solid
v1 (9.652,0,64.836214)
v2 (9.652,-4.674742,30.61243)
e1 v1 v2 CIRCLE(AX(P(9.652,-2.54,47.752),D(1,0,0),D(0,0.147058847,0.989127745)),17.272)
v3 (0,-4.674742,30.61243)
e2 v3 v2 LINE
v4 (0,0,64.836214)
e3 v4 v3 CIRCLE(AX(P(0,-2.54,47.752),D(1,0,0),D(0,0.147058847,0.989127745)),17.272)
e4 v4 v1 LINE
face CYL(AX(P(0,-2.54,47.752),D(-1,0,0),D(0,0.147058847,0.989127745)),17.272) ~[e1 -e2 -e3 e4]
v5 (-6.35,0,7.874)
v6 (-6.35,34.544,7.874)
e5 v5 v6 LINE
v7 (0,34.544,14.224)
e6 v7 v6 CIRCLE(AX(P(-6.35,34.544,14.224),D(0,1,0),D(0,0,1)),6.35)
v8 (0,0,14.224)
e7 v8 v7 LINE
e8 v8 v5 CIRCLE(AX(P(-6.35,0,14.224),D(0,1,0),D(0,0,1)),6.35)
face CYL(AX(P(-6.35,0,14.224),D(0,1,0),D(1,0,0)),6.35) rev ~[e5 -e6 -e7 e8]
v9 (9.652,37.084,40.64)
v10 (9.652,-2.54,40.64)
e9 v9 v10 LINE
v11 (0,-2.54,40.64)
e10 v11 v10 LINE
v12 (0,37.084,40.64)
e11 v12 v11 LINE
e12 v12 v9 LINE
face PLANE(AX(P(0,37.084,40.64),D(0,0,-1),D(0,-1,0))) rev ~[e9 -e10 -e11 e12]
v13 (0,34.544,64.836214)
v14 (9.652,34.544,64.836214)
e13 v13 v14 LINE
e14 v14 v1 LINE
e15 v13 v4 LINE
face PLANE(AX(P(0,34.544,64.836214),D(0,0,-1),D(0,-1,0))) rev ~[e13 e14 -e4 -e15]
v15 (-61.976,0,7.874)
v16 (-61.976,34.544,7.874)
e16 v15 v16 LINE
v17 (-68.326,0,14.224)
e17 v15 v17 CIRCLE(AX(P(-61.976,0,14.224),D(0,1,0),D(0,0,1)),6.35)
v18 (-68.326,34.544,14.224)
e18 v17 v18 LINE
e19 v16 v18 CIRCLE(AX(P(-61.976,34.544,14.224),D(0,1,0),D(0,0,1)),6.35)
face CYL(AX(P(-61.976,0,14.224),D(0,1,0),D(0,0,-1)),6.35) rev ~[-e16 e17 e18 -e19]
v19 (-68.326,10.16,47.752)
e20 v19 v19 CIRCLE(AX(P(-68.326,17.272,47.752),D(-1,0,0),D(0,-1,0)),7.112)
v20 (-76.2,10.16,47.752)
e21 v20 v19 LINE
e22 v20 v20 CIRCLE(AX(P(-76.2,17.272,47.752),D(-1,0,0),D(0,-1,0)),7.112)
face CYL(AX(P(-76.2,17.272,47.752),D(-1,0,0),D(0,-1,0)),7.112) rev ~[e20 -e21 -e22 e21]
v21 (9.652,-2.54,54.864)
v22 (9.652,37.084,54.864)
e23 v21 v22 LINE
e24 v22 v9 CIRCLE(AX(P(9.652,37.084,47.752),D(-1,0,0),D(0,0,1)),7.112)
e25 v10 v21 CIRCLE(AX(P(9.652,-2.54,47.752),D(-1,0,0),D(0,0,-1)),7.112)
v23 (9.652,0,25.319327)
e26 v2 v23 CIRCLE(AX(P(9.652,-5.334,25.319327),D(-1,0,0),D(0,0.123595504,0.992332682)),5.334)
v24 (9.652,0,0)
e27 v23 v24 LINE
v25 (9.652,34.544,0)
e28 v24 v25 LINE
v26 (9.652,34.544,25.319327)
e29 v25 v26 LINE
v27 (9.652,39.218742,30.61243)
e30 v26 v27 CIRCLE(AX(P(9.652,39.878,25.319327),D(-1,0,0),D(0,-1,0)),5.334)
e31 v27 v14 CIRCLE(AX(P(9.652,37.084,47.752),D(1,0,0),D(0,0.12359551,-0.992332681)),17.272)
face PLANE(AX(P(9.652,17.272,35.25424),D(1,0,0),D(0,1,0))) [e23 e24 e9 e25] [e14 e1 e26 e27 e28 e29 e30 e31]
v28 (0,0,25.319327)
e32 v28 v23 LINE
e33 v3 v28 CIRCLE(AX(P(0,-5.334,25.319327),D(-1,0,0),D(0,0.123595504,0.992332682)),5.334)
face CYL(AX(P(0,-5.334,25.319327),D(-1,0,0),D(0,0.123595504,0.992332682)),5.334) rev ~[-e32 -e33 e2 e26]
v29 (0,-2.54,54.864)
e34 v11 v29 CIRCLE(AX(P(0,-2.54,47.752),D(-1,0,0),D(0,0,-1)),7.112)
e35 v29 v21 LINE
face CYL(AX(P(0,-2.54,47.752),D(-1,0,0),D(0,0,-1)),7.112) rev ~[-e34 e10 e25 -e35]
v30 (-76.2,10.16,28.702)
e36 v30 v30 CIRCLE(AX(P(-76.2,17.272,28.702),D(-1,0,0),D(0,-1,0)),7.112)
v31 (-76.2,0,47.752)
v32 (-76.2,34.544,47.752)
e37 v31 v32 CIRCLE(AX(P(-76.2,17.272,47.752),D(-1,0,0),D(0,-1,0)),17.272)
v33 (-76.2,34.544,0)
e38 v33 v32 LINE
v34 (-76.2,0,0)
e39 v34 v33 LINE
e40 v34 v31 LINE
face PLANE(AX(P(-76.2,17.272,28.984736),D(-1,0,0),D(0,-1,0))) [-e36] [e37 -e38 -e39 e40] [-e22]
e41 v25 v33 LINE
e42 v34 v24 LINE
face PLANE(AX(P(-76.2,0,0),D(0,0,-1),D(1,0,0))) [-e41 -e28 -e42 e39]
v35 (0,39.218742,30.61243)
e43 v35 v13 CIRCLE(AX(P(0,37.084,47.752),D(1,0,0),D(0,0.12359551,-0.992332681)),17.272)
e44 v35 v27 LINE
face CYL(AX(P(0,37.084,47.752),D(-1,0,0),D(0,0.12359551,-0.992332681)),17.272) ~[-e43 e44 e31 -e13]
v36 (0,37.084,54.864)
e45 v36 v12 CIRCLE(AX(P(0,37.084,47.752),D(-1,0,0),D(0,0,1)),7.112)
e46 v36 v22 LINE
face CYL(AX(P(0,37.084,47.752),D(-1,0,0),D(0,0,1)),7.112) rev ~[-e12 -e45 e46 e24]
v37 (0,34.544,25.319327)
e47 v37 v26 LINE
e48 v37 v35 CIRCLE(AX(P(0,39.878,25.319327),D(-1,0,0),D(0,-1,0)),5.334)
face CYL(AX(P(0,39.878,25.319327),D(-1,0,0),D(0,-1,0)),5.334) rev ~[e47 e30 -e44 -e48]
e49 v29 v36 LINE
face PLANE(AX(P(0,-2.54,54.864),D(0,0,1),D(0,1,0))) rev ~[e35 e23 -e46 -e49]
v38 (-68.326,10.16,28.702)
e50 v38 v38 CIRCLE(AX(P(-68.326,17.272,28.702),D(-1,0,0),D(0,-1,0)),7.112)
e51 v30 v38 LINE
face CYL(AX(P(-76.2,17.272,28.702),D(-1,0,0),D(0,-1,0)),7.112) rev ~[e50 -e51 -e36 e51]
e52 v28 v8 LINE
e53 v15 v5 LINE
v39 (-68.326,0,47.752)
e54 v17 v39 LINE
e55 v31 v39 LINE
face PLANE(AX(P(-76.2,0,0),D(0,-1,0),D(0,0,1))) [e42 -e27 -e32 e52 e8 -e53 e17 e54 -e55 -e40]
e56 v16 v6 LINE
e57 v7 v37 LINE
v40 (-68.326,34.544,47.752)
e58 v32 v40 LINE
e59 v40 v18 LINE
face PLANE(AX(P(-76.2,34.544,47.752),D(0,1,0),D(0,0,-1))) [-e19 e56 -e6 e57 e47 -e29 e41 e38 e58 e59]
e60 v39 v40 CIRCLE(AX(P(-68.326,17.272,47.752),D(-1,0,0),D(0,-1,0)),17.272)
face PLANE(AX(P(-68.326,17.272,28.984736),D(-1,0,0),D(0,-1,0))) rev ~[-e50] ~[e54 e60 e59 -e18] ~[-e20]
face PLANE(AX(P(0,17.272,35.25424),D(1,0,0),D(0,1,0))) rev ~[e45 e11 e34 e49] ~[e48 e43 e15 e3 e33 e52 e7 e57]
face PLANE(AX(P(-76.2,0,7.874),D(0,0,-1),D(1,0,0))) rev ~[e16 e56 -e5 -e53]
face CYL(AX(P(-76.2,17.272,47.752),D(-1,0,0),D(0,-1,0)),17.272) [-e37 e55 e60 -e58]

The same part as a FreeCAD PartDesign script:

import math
import FreeCAD as App
import Part
import Sketcher

V = App.Vector
Q = App.Units.Quantity


def edges_at(feature, points):
    """Names of the edges that pass closest to the given points."""
    edges = feature.Shape.Edges
    near = lambda p: min(range(len(edges)), key=lambda i: edges[i].distToShape(Part.Vertex(*p))[0])
    return sorted({f"Edge{near(p) + 1}" for p in points})

doc = App.newDocument("Part")
body = doc.addObject("PartDesign::Body", "Body")

# Sketch on YZ plane
sketch1 = doc.addObject("Sketcher::SketchObject", "Sketch")
body.addObject(sketch1)
sketch1.AttachmentSupport = (doc.YZ_Plane, [""])
sketch1.MapMode = "FlatFace"
sketch1.addGeometry(Part.LineSegment(V(0, 25, 0), V(0, 0, 0)), False)
sketch1.addGeometry(Part.LineSegment(V(0, 0, 0), V(35, 0, 0)), False)
sketch1.addGeometry(Part.LineSegment(V(35, 0, 0), V(35, 25, 0)), False)
sketch1.addGeometry(Part.ArcOfCircle(Part.Circle(V(40, 25, 0), V(0, 0, 1), 5), math.radians(97), math.radians(180)), False)
sketch1.addGeometry(Part.ArcOfCircle(Part.Circle(V(37, 48, 0), V(0, 0, 1), 17), math.radians(-83), math.radians(98)), False)
sketch1.addGeometry(Part.LineSegment(V(35, 65, 0), V(0, 65, 0)), False)
sketch1.addGeometry(Part.ArcOfCircle(Part.Circle(V(-3, 48, 0), V(0, 0, 1), 17), math.radians(82), math.radians(263)), False)
sketch1.addGeometry(Part.ArcOfCircle(Part.Circle(V(-5, 25, 0), V(0, 0, 1), 5), math.radians(0), math.radians(83)), False)
sketch1.addGeometry(Part.LineSegment(V(-3, 55, 0), V(37, 55, 0)), False)
sketch1.addGeometry(Part.ArcOfCircle(Part.Circle(V(37, 48, 0), V(0, 0, 1), 7), math.radians(-90), math.radians(90)), False)
sketch1.addGeometry(Part.LineSegment(V(37, 41, 0), V(-3, 41, 0)), False)
sketch1.addGeometry(Part.ArcOfCircle(Part.Circle(V(-3, 48, 0), V(0, 0, 1), 7), math.radians(90), math.radians(270)), False)
sketch1.addConstraint(Sketcher.Constraint("Coincident", 0, 2, 1, 1))
sketch1.addConstraint(Sketcher.Constraint("Coincident", 1, 2, 2, 1))
sketch1.addConstraint(Sketcher.Constraint("Tangent", 2, 2, 3, 2))
sketch1.addConstraint(Sketcher.Constraint("Tangent", 3, 1, 4, 1))
sketch1.addConstraint(Sketcher.Constraint("Coincident", 4, 2, 5, 1))
sketch1.addConstraint(Sketcher.Constraint("Coincident", 5, 2, 6, 1))
sketch1.addConstraint(Sketcher.Constraint("Tangent", 6, 2, 7, 2))
sketch1.addConstraint(Sketcher.Constraint("Tangent", 7, 1, 0, 1))
sketch1.addConstraint(Sketcher.Constraint("Tangent", 8, 2, 9, 2))
sketch1.addConstraint(Sketcher.Constraint("Tangent", 9, 1, 10, 1))
sketch1.addConstraint(Sketcher.Constraint("Tangent", 10, 2, 11, 2))
sketch1.addConstraint(Sketcher.Constraint("Tangent", 11, 1, 8, 1))
sketch1.addConstraint(Sketcher.Constraint("Vertical", 0))
sketch1.addConstraint(Sketcher.Constraint("Horizontal", 1))
sketch1.addConstraint(Sketcher.Constraint("Vertical", 2))
sketch1.addConstraint(Sketcher.Constraint("Horizontal", 5))
sketch1.addConstraint(Sketcher.Constraint("Horizontal", 8))
sketch1.addConstraint(Sketcher.Constraint("Horizontal", 10))
sketch1.addConstraint(Sketcher.Constraint("Coincident", 0, 2, -1, 1))
sketch1.addConstraint(Sketcher.Constraint("Coincident", 9, 3, 4, 3))
sketch1.addConstraint(Sketcher.Constraint("Coincident", 11, 3, 6, 3))
sketch1.addConstraint(Sketcher.Constraint("Equal", 4, 6))
sketch1.addConstraint(Sketcher.Constraint("Equal", 3, 7))
sketch1.addConstraint(Sketcher.Constraint("PointOnObject", 5, 2, -2))
sketch1.addConstraint(Sketcher.Constraint("Horizontal", 3, 3, 7, 3))
sketch1.addConstraint(Sketcher.Constraint("Radius", 3, Q("0.21 in")))
sketch1.addConstraint(Sketcher.Constraint("Radius", 4, Q("0.68 in")))
sketch1.addConstraint(Sketcher.Constraint("Radius", 9, Q("0.28 in")))
sketch1.addConstraint(Sketcher.Constraint("DistanceX", 1, 1, 1, 2, Q("1.36 in")))
sketch1.addConstraint(Sketcher.Constraint("DistanceX", 8, 1, 8, 2, Q("1.56 in")))
sketch1.addConstraint(Sketcher.Constraint("DistanceY", -1, 1, 9, 1, Q("1.6 in")))
pad1 = doc.addObject("PartDesign::Pad", "Pad")
body.addObject(pad1)
pad1.Profile = sketch1
pad1.Length = Q("0.38 in")

# Sketch on XZ plane
sketch2 = doc.addObject("Sketcher::SketchObject", "Sketch001")
body.addObject(sketch2)
sketch2.AttachmentSupport = (doc.XZ_Plane, [""])
sketch2.MapMode = "FlatFace"
sketch2.addGeometry(Part.LineSegment(V(-76, 8, 0), V(-76, 0, 0)), False)
sketch2.addGeometry(Part.LineSegment(V(-76, 0, 0), V(0, 0, 0)), False)
sketch2.addGeometry(Part.LineSegment(V(0, 0, 0), V(0, 8, 0)), False)
sketch2.addGeometry(Part.LineSegment(V(0, 8, 0), V(-76, 8, 0)), False)
sketch2.addConstraint(Sketcher.Constraint("Coincident", 0, 2, 1, 1))
sketch2.addConstraint(Sketcher.Constraint("Coincident", 1, 2, 2, 1))
sketch2.addConstraint(Sketcher.Constraint("Coincident", 2, 2, 3, 1))
sketch2.addConstraint(Sketcher.Constraint("Coincident", 3, 2, 0, 1))
sketch2.addConstraint(Sketcher.Constraint("Vertical", 0))
sketch2.addConstraint(Sketcher.Constraint("Horizontal", 1))
sketch2.addConstraint(Sketcher.Constraint("Vertical", 2))
sketch2.addConstraint(Sketcher.Constraint("Horizontal", 3))
sketch2.addConstraint(Sketcher.Constraint("Coincident", 1, 2, -1, 1))
sketch2.addConstraint(Sketcher.Constraint("DistanceX", 1, 1, 1, 2, Q("3 in")))
sketch2.addConstraint(Sketcher.Constraint("DistanceY", 0, 2, 0, 1, Q("0.31 in")))
pad2 = doc.addObject("PartDesign::Pad", "Pad001")
body.addObject(pad2)
pad2.Profile = sketch2
pad2.Length = Q("1.36 in")
pad2.Reversed = True

# Sketch on YZ plane
sketch3 = doc.addObject("Sketcher::SketchObject", "Sketch002")
body.addObject(sketch3)
sketch3.AttachmentSupport = (doc.YZ_Plane, [""])
sketch3.MapMode = "FlatFace"
sketch3.AttachmentOffset = App.Placement(V(0, 0, -3 * 25.4), App.Rotation())
sketch3.addGeometry(Part.LineSegment(V(35, 48, 0), V(35, 0, 0)), False)
sketch3.addGeometry(Part.LineSegment(V(35, 0, 0), V(0, 0, 0)), False)
sketch3.addGeometry(Part.LineSegment(V(0, 0, 0), V(0, 48, 0)), False)
sketch3.addGeometry(Part.ArcOfCircle(Part.Circle(V(17, 48, 0), V(0, 0, 1), 17), math.radians(0), math.radians(180)), False)
sketch3.addGeometry(Part.Circle(V(17, 29, 0), V(0, 0, 1), 7), False)
sketch3.addGeometry(Part.Circle(V(17, 48, 0), V(0, 0, 1), 7), False)
sketch3.addConstraint(Sketcher.Constraint("Coincident", 0, 2, 1, 1))
sketch3.addConstraint(Sketcher.Constraint("Coincident", 1, 2, 2, 1))
sketch3.addConstraint(Sketcher.Constraint("Tangent", 2, 2, 3, 2))
sketch3.addConstraint(Sketcher.Constraint("Tangent", 3, 1, 0, 1))
sketch3.addConstraint(Sketcher.Constraint("Vertical", 0))
sketch3.addConstraint(Sketcher.Constraint("Horizontal", 1))
sketch3.addConstraint(Sketcher.Constraint("Vertical", 2))
sketch3.addConstraint(Sketcher.Constraint("Coincident", 1, 2, -1, 1))
sketch3.addConstraint(Sketcher.Constraint("Coincident", 5, 3, 3, 3))
sketch3.addConstraint(Sketcher.Constraint("Equal", 4, 5))
sketch3.addConstraint(Sketcher.Constraint("Vertical", 3, 3, 4, 3))
sketch3.addConstraint(Sketcher.Constraint("Diameter", 4, Q("0.56 in")))
sketch3.addConstraint(Sketcher.Constraint("Radius", 3, Q("0.68 in")))
sketch3.addConstraint(Sketcher.Constraint("DistanceY", 0, 2, 0, 1, Q("1.88 in")))
sketch3.addConstraint(Sketcher.Constraint("DistanceY", -1, 1, 4, 3, Q("1.13 in")))
pad3 = doc.addObject("PartDesign::Pad", "Pad002")
body.addObject(pad3)
pad3.Profile = sketch3
pad3.Length = Q("0.31 in")
doc.recompute()

fillet = doc.addObject("PartDesign::Fillet", "Fillet")
body.addObject(fillet)
fillet.Base = (pad3, edges_at(pad3, [(-68.326, 17.272, 7.874), (0, 17.272, 7.874)]))
fillet.Radius = Q("0.25 in")

doc.recompute()
